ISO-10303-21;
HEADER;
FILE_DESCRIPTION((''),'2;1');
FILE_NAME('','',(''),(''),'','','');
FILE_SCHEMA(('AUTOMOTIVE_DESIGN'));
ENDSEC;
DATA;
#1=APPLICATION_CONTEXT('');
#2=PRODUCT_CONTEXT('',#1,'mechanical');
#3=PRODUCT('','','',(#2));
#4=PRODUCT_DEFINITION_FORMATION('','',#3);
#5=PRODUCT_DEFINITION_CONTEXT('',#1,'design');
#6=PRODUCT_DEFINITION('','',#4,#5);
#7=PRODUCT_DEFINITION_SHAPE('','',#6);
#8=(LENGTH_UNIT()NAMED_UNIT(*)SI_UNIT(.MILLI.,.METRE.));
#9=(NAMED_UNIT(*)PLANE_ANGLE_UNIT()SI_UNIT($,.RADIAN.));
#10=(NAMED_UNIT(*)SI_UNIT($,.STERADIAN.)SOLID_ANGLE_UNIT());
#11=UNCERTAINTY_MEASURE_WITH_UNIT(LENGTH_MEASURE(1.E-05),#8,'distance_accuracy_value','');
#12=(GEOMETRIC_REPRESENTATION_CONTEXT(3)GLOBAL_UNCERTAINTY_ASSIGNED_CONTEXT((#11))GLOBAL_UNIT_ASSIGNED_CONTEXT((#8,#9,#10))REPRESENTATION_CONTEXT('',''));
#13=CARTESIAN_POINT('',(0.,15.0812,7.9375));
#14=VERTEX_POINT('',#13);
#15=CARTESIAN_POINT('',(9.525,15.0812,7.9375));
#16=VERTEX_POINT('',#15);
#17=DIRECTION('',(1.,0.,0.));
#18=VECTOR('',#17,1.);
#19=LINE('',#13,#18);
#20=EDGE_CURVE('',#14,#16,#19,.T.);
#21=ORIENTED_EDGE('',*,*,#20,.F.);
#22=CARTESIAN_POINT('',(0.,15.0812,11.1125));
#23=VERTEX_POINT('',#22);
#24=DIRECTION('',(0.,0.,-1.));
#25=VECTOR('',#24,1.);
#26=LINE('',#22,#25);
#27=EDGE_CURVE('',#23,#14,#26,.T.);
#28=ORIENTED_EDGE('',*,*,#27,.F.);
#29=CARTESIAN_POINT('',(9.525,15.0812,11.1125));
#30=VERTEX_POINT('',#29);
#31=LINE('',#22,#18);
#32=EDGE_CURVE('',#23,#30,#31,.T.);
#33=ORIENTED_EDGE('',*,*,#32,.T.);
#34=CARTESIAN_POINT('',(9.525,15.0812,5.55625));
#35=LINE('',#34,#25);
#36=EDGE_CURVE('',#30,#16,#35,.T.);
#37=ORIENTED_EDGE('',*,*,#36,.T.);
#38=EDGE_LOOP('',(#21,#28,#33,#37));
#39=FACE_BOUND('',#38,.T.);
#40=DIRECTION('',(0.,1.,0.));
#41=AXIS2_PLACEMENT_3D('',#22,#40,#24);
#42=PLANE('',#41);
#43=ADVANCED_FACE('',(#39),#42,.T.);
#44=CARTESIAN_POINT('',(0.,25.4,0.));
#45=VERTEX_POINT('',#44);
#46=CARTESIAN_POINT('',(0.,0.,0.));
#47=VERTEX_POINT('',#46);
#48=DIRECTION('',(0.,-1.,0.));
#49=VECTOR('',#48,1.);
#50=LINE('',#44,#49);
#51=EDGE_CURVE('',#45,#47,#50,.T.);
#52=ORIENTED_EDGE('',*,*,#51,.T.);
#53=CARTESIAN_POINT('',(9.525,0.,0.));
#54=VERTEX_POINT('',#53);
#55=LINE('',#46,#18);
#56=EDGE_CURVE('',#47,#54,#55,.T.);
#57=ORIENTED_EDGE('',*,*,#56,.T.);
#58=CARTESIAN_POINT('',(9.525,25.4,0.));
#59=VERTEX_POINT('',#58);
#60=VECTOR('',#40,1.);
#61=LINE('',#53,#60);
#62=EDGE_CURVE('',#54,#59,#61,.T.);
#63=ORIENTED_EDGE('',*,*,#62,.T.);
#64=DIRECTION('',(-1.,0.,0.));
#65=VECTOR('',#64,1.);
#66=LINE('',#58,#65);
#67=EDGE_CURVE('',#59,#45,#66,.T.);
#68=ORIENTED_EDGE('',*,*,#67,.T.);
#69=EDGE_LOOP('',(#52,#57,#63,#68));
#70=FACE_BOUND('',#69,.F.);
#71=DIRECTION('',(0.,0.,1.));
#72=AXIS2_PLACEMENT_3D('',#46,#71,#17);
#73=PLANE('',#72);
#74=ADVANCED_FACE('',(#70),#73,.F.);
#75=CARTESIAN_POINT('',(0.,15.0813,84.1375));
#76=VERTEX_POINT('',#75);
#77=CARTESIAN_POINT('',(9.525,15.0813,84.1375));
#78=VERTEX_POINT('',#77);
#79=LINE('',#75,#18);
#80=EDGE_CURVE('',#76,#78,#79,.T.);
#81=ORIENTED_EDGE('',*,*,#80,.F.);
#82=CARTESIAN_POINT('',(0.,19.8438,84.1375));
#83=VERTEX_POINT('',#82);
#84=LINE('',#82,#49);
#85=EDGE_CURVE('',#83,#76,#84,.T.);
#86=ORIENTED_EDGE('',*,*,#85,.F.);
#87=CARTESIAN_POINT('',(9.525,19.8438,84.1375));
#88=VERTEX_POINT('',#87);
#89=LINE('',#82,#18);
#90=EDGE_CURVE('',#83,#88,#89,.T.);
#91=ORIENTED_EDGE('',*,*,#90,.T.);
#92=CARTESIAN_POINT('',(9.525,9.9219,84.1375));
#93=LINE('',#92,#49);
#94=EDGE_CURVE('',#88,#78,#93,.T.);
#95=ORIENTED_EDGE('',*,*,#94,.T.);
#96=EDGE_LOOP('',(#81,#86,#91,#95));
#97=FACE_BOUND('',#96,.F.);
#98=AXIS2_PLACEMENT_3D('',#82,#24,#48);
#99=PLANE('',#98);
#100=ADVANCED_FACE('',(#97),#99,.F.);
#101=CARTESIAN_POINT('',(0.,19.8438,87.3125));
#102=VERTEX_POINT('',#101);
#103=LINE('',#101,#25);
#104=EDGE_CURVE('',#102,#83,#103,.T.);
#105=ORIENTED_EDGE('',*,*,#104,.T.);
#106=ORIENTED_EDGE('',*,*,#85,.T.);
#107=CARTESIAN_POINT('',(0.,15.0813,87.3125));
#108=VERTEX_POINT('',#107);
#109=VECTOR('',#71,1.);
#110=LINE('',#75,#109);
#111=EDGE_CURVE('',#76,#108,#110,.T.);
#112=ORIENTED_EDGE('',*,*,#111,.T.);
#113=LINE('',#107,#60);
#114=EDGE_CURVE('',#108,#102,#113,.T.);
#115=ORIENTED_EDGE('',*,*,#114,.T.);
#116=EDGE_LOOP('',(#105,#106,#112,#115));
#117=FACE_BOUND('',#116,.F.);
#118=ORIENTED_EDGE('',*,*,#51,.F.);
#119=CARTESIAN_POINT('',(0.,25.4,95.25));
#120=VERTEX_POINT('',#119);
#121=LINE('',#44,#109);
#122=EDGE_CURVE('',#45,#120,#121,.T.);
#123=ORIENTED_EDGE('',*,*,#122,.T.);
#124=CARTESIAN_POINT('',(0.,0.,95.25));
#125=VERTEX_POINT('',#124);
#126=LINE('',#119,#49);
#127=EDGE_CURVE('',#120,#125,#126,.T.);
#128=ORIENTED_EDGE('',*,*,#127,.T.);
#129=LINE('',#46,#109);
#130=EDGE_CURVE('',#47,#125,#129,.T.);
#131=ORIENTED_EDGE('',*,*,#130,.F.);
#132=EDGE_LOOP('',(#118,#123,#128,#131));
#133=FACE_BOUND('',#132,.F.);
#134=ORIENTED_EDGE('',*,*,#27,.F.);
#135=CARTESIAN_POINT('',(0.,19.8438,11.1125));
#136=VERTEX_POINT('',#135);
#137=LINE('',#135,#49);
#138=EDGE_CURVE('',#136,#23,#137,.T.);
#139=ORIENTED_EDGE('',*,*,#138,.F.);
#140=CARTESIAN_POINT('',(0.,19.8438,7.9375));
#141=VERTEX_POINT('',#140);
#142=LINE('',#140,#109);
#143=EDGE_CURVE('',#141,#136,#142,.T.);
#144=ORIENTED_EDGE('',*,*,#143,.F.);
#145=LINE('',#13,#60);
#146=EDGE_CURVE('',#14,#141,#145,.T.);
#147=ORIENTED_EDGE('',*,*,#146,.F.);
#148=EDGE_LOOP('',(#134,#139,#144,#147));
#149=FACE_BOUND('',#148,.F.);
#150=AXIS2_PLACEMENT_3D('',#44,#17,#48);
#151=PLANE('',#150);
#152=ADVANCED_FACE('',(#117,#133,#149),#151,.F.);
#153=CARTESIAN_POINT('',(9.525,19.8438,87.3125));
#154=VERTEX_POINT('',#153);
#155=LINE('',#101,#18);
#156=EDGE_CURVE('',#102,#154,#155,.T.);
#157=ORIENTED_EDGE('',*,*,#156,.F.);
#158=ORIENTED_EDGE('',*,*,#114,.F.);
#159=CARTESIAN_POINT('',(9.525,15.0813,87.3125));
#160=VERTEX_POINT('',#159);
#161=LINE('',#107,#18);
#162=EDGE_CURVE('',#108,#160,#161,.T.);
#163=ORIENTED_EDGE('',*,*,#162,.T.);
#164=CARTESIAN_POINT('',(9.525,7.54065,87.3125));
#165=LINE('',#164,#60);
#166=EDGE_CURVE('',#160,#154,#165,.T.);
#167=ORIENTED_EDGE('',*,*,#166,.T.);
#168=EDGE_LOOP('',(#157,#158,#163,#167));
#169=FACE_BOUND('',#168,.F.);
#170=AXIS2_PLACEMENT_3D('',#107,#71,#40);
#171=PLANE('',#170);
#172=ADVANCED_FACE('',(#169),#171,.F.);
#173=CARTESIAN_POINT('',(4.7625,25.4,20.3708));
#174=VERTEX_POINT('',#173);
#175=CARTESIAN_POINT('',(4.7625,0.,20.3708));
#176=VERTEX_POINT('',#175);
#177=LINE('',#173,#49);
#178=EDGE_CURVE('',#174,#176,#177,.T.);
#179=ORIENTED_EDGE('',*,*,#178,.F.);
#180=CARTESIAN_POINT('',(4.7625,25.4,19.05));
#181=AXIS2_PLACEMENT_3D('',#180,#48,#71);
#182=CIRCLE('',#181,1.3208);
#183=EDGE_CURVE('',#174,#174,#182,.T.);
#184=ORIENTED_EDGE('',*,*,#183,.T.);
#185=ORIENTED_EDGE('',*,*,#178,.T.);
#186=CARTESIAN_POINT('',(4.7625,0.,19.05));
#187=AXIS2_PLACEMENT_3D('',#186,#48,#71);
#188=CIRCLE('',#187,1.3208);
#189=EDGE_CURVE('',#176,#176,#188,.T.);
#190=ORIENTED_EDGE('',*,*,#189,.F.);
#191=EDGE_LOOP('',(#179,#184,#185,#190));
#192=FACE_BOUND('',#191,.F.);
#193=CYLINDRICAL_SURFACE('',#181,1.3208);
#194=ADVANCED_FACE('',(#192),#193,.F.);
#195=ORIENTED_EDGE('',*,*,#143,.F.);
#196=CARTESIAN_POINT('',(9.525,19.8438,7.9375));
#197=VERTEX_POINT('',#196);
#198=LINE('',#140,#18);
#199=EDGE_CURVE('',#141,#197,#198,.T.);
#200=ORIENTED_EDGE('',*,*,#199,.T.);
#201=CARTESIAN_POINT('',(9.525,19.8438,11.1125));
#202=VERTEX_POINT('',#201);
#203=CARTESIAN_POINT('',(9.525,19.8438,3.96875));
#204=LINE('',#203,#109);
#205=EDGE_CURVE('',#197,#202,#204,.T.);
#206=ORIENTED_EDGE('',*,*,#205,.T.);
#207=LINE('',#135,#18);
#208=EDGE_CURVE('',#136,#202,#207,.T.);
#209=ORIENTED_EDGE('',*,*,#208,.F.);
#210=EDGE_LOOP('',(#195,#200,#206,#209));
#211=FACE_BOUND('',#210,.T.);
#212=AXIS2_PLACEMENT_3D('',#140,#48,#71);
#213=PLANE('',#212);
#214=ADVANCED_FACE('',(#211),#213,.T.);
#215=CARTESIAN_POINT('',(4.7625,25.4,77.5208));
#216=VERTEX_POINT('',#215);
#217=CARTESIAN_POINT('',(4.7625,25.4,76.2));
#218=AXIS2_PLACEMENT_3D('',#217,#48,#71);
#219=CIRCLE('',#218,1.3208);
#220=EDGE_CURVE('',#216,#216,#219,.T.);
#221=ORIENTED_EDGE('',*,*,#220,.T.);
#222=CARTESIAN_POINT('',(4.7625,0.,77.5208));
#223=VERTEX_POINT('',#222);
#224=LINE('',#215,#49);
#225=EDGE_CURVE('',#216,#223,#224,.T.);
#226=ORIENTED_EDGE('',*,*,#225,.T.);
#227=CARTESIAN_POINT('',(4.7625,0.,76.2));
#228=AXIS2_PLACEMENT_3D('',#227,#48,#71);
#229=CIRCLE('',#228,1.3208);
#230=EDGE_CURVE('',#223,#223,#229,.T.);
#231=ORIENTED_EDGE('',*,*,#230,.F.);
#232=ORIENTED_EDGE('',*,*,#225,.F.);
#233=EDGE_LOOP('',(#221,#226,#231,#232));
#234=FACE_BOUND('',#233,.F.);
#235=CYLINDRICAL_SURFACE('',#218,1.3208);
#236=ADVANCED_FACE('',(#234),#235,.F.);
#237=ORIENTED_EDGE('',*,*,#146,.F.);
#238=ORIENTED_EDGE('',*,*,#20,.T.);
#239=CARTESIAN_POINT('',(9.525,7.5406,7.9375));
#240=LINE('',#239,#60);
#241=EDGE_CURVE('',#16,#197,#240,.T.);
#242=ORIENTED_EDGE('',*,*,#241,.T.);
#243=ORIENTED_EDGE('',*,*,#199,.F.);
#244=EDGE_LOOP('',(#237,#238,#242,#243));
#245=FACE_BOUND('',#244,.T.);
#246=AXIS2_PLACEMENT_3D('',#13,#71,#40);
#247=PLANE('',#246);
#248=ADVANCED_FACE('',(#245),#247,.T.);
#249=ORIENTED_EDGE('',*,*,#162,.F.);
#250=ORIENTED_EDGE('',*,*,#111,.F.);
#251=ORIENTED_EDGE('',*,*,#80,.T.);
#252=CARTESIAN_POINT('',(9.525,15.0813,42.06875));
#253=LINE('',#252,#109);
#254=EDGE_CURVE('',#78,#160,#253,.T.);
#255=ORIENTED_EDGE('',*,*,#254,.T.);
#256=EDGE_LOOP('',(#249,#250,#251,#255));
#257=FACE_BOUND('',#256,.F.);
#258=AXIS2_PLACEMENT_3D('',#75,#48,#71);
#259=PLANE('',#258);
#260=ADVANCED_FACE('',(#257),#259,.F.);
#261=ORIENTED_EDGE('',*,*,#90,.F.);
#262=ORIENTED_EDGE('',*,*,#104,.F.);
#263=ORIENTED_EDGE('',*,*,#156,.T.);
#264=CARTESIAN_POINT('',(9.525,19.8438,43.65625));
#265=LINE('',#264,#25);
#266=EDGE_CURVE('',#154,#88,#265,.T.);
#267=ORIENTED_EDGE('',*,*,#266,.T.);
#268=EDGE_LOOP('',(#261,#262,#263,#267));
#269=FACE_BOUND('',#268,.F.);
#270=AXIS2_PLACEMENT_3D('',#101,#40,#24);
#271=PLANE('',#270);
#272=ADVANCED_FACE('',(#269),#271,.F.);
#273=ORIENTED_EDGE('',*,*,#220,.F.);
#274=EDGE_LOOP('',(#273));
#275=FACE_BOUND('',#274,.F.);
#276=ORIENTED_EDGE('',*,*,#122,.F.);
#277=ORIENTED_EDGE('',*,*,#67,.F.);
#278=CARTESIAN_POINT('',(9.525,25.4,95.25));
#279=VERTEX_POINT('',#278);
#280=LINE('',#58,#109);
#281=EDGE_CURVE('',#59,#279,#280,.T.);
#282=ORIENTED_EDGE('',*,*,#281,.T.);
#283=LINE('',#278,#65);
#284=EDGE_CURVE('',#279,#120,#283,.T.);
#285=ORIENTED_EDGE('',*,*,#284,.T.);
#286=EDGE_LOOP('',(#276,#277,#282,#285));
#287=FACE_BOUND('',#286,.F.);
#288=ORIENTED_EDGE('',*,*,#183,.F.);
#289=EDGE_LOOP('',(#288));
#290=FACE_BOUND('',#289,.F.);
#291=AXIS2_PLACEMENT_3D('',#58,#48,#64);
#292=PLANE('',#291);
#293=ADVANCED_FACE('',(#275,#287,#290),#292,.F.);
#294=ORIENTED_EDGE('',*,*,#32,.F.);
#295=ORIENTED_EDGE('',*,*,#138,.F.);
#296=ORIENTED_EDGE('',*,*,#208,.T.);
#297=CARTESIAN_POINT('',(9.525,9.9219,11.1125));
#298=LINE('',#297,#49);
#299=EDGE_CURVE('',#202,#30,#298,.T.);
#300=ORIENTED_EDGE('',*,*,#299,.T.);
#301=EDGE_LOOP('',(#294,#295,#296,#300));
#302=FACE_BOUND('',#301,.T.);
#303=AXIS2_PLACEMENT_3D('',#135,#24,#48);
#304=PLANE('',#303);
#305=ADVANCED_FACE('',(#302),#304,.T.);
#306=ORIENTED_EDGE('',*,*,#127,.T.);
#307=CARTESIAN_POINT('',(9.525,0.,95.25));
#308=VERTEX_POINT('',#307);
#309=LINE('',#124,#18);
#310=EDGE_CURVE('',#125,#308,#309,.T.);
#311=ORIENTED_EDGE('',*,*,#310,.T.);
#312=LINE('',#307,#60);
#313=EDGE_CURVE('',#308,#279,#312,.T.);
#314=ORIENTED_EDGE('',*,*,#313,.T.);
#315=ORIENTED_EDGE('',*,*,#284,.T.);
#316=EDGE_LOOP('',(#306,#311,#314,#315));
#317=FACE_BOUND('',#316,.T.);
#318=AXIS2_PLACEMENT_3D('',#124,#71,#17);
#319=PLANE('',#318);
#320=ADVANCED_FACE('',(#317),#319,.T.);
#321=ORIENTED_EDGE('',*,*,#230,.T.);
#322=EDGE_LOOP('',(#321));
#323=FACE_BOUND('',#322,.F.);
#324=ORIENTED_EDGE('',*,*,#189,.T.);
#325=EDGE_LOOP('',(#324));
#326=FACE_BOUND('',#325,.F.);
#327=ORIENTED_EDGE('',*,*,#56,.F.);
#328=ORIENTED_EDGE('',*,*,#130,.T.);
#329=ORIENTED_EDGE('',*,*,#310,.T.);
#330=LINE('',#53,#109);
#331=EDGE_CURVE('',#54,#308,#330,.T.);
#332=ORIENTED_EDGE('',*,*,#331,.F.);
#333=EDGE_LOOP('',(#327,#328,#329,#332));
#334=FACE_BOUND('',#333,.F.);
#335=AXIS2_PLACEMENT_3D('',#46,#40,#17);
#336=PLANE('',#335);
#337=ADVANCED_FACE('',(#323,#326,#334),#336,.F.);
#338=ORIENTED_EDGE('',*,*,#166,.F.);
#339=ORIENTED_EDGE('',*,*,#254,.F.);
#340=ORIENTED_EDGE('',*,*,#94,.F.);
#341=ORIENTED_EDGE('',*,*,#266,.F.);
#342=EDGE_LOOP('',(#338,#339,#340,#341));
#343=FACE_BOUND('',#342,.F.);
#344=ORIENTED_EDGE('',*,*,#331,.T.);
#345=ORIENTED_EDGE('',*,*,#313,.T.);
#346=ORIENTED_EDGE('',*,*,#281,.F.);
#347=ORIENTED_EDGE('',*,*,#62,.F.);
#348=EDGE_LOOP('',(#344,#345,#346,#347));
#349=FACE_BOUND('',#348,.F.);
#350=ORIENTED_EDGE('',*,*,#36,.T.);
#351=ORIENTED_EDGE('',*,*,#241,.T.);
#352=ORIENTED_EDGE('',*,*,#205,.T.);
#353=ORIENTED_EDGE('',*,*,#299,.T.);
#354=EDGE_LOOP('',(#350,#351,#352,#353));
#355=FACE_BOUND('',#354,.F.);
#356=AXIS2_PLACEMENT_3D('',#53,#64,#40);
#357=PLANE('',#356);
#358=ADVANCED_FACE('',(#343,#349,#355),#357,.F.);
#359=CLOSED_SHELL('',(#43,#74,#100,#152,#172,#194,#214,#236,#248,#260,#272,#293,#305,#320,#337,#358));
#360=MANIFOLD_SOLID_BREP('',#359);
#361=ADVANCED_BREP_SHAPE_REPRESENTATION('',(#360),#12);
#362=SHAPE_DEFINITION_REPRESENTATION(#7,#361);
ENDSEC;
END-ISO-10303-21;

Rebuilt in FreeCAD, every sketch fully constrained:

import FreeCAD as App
import Part
import Sketcher

V = App.Vector
Q = App.Units.Quantity


def add_polygon(sketch, points):
    """Adds a closed chain of lines whose ends are joined by coincident constraints."""
    first, n = sketch.GeometryCount, len(points)
    for a, b in zip(points, points[1:] + points[:1]):
        sketch.addGeometry(Part.LineSegment(App.Vector(*a, 0), App.Vector(*b, 0)), False)
    for i in range(n):
        sketch.addConstraint(Sketcher.Constraint("Coincident", first + i, 2, first + (i + 1) % n, 1))

doc = App.newDocument("Part")
body = doc.addObject("PartDesign::Body", "Body")

# Sketch on XY plane
sketch1 = body.newObject("Sketcher::SketchObject", "Sketch")
sketch1.AttachmentSupport = (doc.getObject("XY_Plane"), [""])
sketch1.MapMode = "FlatFace"
add_polygon(sketch1, [(0, 25.4), (0, 0), (9.525, 0), (9.525, 25.4)])  # lines 0-3
sketch1.addConstraint([
    Sketcher.Constraint("Vertical", 0),
    Sketcher.Constraint("Horizontal", 1),
    Sketcher.Constraint("Vertical", 2),
    Sketcher.Constraint("Horizontal", 3),
    Sketcher.Constraint("Coincident", 0, 2, -1, 1),
    Sketcher.Constraint("DistanceY", 0, 2, 0, 1, Q("1 in")),
    Sketcher.Constraint("DistanceX", 1, 1, 1, 2, Q("0.375 in")),
])
pad1 = body.newObject("PartDesign::Pad", "Pad")
pad1.Profile = sketch1
pad1.Length = Q("3.75 in")

# Sketch on XZ plane
sketch2 = body.newObject("Sketcher::SketchObject", "Sketch001")
sketch2.AttachmentSupport = (doc.getObject("XZ_Plane"), [""])
sketch2.MapMode = "FlatFace"
sketch2.AttachmentOffset = App.Placement(V(0, 0, -1 * 25.4), App.Rotation())
sketch2.addGeometry([
    Part.Circle(V(4.7625, 19.05, 0), V(0, 0, 1), 1.3208),
    Part.Circle(V(4.7625, 76.2, 0), V(0, 0, 1), 1.3208),
], False)
sketch2.addConstraint([
    Sketcher.Constraint("Equal", 0, 1),
    Sketcher.Constraint("Vertical", 0, 3, 1, 3),
    Sketcher.Constraint("Diameter", 0, Q("0.104 in")),
    Sketcher.Constraint("DistanceY", -1, 1, 1, 3, Q("3 in")),
    Sketcher.Constraint("DistanceY", -1, 1, 0, 3, Q("0.75 in")),
    Sketcher.Constraint("DistanceX", -1, 1, 0, 3, Q("0.1875 in")),
])
doc.recompute()
hole = body.newObject("PartDesign::Hole", "Hole")
hole.Profile = sketch2
hole.ThreadType = "None"
hole.Diameter = Q("0.104 in")
hole.DepthType = "ThroughAll"
hole.Reversed = True

# Sketch on YZ plane
sketch3 = body.newObject("Sketcher::SketchObject", "Sketch002")
sketch3.AttachmentSupport = (doc.getObject("YZ_Plane"), [""])
sketch3.MapMode = "FlatFace"
add_polygon(sketch3, [(19.8438, 11.1125), (19.8438, 7.9375), (15.0812, 7.9375), (15.0812, 11.1125)])  # lines 0-3
add_polygon(sketch3, [(15.0813, 87.3125), (19.8438, 87.3125), (19.8438, 84.1375), (15.0813, 84.1375)])  # lines 4-7
sketch3.addConstraint([
    Sketcher.Constraint("Vertical", 0),
    Sketcher.Constraint("Horizontal", 1),
    Sketcher.Constraint("Vertical", 2),
    Sketcher.Constraint("Horizontal", 3),
    Sketcher.Constraint("Horizontal", 4),
    Sketcher.Constraint("Vertical", 5),
    Sketcher.Constraint("Horizontal", 6),
    Sketcher.Constraint("Vertical", 7),
    Sketcher.Constraint("Vertical", 3, 2, 4, 2),
    Sketcher.Constraint("Vertical", 2, 2, 6, 2),
    Sketcher.Constraint("Equal", 2, 5),
    Sketcher.Constraint("DistanceX", 1, 2, 1, 1, Q("0.1875 in")),
    Sketcher.Constraint("DistanceY", 0, 2, 0, 1, Q("0.125 in")),
    Sketcher.Constraint("DistanceY", -1, 1, 0, 2, Q("0.3125 in")),
    Sketcher.Constraint("DistanceY", 3, 2, 4, 2, Q("3 in")),
    Sketcher.Constraint("DistanceX", -1, 1, 0, 2, Q("0.781252 in")),
])
pocket1 = body.newObject("PartDesign::Pocket", "Pocket")
pocket1.Profile = sketch3
pocket1.Type = "ThroughAll"
pocket1.Reversed = True

doc.recompute()
